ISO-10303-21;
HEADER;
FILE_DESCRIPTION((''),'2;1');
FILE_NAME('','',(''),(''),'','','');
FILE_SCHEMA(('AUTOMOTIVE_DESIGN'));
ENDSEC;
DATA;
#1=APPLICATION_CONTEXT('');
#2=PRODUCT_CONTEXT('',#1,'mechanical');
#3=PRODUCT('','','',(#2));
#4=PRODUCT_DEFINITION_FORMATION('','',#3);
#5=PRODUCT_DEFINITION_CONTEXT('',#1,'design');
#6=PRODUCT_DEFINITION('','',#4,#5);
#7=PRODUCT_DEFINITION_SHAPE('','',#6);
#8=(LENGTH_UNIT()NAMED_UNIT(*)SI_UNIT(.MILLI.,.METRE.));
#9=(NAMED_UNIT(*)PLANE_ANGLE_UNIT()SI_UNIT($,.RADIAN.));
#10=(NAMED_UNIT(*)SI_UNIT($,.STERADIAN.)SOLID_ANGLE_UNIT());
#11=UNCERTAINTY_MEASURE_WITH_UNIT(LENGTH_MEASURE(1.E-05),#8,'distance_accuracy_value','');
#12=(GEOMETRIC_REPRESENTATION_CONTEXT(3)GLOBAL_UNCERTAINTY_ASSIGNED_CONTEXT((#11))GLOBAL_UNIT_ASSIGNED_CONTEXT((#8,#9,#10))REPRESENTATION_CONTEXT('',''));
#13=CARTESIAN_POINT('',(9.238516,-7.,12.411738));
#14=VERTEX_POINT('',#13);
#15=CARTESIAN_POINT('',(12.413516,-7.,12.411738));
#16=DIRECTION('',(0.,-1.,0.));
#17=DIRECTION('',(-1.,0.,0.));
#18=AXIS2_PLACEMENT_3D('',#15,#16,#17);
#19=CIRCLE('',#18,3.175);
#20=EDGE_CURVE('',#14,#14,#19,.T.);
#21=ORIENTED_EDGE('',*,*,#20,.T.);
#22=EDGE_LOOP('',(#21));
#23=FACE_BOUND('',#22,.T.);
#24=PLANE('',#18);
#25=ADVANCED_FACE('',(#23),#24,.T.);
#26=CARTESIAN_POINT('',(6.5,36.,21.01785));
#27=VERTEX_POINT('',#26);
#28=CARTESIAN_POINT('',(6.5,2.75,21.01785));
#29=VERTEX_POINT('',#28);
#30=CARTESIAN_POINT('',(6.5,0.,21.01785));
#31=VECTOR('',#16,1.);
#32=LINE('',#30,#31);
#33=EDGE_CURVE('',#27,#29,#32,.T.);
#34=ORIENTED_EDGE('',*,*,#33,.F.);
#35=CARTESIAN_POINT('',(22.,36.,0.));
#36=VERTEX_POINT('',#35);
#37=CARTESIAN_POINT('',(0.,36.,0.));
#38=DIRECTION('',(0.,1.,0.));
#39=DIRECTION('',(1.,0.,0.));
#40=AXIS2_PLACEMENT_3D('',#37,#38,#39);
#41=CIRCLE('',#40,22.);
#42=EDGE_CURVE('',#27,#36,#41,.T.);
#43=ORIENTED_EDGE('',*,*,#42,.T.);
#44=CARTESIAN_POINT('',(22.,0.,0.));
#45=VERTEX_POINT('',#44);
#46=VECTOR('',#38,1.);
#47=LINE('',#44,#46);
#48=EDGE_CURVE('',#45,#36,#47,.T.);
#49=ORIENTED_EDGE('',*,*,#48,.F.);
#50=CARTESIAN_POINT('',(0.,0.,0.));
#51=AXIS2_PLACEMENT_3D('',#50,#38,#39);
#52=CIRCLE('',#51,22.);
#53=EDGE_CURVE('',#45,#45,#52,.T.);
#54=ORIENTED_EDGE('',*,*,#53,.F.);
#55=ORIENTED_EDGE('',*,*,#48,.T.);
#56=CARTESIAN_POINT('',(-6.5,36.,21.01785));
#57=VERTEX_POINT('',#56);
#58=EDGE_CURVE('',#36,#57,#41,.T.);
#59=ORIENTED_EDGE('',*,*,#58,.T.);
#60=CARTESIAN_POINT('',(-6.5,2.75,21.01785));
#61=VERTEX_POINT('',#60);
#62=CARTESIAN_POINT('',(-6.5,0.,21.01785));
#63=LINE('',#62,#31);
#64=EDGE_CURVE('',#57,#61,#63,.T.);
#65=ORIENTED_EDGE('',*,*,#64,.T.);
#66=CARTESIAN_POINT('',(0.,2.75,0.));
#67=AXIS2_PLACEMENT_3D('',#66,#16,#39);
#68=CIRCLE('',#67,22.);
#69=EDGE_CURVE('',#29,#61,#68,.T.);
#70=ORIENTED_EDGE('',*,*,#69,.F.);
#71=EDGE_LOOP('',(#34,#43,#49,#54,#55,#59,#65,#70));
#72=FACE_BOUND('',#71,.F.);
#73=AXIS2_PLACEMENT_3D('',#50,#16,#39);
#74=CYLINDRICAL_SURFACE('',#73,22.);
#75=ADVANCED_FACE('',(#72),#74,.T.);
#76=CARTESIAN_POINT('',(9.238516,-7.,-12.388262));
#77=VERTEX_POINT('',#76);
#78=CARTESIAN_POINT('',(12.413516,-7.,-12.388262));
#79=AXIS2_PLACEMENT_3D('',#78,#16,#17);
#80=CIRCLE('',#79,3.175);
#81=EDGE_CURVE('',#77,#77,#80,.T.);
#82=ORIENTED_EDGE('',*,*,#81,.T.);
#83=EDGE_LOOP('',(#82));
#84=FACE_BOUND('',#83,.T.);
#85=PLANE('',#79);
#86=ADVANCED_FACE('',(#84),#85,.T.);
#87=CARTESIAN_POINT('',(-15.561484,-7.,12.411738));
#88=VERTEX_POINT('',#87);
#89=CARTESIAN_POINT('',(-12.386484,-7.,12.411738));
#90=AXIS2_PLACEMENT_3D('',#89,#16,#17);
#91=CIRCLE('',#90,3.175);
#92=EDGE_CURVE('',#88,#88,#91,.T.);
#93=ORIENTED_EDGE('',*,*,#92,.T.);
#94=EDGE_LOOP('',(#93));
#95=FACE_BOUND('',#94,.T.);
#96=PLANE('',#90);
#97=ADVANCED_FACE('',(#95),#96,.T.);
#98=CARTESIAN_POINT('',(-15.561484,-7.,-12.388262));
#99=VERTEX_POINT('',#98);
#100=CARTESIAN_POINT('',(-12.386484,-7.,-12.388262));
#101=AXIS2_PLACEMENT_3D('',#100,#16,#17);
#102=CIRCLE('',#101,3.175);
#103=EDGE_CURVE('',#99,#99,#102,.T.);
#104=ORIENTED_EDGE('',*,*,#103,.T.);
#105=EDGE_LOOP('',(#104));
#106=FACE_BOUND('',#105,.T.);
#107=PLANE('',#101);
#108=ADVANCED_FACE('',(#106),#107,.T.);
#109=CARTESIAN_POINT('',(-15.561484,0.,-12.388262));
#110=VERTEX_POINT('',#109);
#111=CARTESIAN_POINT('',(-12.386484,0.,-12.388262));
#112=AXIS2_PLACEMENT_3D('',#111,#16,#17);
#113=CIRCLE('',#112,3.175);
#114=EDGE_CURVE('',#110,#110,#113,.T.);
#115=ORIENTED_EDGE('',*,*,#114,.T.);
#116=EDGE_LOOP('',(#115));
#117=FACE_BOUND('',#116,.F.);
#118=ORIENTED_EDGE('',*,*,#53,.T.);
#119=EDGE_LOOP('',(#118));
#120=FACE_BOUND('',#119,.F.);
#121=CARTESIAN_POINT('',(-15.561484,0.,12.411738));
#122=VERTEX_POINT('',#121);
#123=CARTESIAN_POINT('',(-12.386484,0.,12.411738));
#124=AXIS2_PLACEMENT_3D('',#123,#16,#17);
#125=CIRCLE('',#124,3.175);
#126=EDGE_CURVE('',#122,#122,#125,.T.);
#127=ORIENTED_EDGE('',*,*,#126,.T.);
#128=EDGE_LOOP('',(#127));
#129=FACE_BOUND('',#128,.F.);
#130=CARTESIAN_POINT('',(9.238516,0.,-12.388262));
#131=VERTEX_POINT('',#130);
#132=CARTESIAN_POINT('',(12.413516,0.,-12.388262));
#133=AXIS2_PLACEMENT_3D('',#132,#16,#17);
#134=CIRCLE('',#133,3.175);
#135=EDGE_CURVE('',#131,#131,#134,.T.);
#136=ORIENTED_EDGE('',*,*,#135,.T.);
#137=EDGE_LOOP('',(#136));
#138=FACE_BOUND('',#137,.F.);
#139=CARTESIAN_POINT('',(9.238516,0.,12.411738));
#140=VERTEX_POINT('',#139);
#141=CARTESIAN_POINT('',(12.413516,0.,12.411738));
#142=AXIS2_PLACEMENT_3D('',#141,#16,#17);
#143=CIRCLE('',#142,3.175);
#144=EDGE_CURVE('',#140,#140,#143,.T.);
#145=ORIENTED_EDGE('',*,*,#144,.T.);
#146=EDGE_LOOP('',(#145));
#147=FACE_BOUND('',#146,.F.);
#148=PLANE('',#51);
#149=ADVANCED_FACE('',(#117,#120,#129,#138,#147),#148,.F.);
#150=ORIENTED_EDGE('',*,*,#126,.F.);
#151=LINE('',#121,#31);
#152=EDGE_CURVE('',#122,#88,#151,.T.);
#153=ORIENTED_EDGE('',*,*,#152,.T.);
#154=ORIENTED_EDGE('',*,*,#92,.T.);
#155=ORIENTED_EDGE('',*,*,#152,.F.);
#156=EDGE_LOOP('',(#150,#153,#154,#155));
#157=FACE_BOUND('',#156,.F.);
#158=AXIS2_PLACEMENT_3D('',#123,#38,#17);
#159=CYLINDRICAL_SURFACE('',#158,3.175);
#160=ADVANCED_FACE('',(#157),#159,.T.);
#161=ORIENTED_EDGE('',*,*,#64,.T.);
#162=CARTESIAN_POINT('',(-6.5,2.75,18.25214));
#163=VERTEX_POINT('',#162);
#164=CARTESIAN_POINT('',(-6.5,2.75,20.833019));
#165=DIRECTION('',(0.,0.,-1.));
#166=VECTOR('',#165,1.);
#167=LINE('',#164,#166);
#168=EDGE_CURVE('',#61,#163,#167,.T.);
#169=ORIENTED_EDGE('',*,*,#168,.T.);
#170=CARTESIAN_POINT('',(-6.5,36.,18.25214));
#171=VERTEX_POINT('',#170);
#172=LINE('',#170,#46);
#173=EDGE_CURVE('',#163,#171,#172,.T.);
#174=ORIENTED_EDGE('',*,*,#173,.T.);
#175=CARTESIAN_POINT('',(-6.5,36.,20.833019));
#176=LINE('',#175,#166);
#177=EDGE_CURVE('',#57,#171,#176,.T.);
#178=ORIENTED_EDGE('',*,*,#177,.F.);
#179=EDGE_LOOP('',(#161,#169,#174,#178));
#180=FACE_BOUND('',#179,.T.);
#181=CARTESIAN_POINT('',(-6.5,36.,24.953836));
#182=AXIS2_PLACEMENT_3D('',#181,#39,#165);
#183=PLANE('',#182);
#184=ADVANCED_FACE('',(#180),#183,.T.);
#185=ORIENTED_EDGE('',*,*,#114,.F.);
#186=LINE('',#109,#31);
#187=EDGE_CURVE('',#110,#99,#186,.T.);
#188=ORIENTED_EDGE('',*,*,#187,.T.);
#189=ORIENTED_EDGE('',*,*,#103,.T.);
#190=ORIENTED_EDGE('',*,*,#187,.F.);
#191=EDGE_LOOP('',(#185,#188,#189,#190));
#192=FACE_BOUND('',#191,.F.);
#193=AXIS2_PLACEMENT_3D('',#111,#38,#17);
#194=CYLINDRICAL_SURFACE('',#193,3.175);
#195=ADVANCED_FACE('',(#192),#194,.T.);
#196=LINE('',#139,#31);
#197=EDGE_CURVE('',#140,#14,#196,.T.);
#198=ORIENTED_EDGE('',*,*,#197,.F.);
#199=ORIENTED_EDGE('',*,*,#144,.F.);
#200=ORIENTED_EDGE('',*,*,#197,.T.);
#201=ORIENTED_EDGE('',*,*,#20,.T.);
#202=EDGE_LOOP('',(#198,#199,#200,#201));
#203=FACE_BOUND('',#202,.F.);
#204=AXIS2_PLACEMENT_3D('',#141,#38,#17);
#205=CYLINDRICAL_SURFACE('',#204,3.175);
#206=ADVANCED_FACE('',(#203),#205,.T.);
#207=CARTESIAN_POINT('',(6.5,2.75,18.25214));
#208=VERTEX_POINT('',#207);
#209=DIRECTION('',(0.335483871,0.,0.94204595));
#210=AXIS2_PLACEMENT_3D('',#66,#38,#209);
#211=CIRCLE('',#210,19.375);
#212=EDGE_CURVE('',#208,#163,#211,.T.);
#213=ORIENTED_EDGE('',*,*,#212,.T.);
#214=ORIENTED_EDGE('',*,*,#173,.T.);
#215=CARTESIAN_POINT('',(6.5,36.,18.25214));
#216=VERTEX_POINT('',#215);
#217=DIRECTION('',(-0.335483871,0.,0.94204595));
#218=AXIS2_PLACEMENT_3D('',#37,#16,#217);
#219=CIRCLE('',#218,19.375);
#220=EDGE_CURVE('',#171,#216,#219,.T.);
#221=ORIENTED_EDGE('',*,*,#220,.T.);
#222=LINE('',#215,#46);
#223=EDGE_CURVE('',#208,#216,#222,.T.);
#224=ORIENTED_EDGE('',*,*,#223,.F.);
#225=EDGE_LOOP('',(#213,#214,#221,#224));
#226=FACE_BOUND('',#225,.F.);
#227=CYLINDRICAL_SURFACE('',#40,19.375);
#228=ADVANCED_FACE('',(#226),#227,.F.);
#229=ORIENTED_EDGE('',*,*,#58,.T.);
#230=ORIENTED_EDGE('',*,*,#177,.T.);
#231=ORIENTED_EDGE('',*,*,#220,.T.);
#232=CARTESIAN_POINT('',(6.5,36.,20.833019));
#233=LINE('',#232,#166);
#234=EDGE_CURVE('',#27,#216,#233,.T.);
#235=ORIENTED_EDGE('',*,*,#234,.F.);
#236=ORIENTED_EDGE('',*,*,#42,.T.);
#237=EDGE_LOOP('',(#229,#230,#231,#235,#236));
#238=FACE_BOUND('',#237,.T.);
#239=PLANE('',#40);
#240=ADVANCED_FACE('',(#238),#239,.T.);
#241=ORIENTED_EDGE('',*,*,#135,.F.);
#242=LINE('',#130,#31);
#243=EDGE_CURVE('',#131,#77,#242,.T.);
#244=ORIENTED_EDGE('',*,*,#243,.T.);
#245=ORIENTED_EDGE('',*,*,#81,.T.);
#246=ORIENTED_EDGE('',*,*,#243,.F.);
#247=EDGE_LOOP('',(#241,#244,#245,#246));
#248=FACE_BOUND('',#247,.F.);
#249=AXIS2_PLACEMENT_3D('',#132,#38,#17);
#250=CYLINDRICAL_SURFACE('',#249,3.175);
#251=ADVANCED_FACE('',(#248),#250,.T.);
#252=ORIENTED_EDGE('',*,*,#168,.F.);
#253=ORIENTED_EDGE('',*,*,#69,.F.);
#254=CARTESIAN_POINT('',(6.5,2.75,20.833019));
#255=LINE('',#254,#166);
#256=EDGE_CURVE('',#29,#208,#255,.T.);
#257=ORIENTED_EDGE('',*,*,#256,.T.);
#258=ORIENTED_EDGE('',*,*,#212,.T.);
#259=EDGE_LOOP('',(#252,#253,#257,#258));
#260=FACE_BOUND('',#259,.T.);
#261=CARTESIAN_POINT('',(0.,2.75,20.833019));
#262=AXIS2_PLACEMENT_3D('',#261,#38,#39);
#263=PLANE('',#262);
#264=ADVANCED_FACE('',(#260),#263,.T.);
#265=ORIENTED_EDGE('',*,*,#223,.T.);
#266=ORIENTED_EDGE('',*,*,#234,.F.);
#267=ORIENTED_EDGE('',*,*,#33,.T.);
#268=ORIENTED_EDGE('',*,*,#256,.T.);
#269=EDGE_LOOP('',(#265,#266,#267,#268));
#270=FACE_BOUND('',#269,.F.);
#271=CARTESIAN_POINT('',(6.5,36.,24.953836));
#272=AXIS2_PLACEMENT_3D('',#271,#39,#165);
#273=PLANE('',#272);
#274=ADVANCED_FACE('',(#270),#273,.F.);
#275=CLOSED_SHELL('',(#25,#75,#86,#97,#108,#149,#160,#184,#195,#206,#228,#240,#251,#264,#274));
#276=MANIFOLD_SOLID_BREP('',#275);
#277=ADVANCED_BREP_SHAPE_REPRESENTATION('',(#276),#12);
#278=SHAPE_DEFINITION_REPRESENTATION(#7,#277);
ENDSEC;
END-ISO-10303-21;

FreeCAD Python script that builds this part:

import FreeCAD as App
import Part
import Sketcher
Q = App.Units.Quantity


def add_polygon(sketch, points):
    """Adds a closed chain of lines whose ends are joined by coincident constraints."""
    first, n = sketch.GeometryCount, len(points)
    for a, b in zip(points, points[1:] + points[:1]):
        sketch.addGeometry(Part.LineSegment(App.Vector(*a, 0), App.Vector(*b, 0)), False)
    for i in range(n):
        sketch.addConstraint(Sketcher.Constraint("Coincident", first + i, 2, first + (i + 1) % n, 1))

doc = App.newDocument("Part")
body = doc.addObject("PartDesign::Body", "Body")

sketch1 = body.newObject("Sketcher::SketchObject", "Sketch")
sketch1.AttachmentSupport = (doc.getObject("XZ_Plane"), [""])
sketch1.MapMode = "FlatFace"
sketch1.addGeometry(Part.Circle(App.Vector(0, 0, 0), App.Vector(0, 0, 1), 22), False)
sketch1.addConstraint([
    Sketcher.Constraint("Coincident", 0, 3, -1, 1),
    Sketcher.Constraint("Diameter", 0, Q("44 mm")),
])
pad1 = body.newObject("PartDesign::Pad", "Pad")
pad1.Profile = sketch1
pad1.Length = 36
pad1.Reversed = True

sketch2 = body.newObject("Sketcher::SketchObject", "Sketch001")
sketch2.AttachmentSupport = (doc.getObject("XZ_Plane"), [""])
sketch2.MapMode = "FlatFace"
sketch2.AttachmentOffset = App.Placement(App.Vector(0, 0, -36), App.Rotation())
sketch2.addGeometry(Part.Circle(App.Vector(0, 0, 0), App.Vector(0, 0, 1), 19), False)
sketch2.addConstraint([
    Sketcher.Constraint("Coincident", 0, 3, -1, 1),
    Sketcher.Constraint("Diameter", 0, Q("38.75 mm")),
])
pocket1 = body.newObject("PartDesign::Pocket", "Pocket")
pocket1.Profile = sketch2
pocket1.Length = 33.25
pocket1.Reversed = True

sketch3 = body.newObject("Sketcher::SketchObject", "Sketch002")
sketch3.AttachmentSupport = (doc.getObject("XZ_Plane"), [""])
sketch3.MapMode = "FlatFace"
sketch3.AttachmentOffset = App.Placement(App.Vector(0, 0, -36), App.Rotation())
add_polygon(sketch3, [(-6, 17), (-6, 25), (6, 25), (6, 17)])
sketch3.addConstraint([
    Sketcher.Constraint("Vertical", 0),
    Sketcher.Constraint("Horizontal", 1),
    Sketcher.Constraint("Vertical", 2),
    Sketcher.Constraint("Horizontal", 3),
    Sketcher.Constraint("DistanceX", 1, 1, 1, 2, Q("13 mm")),
    Sketcher.Constraint("DistanceX", 0, 2, -1, 1, Q("6.5 mm")),
    Sketcher.Constraint("DistanceY", 0, 1, 0, 2, Q("8.241634 mm")),
    Sketcher.Constraint("DistanceY", -1, 1, 0, 2, Q("24.953836 mm")),
])
pocket2 = body.newObject("PartDesign::Pocket", "Pocket001")
pocket2.Profile = sketch3
pocket2.Length = 33.25
pocket2.Reversed = True

sketch4 = body.newObject("Sketcher::SketchObject", "Sketch003")
sketch4.AttachmentSupport = (doc.getObject("XZ_Plane"), [""])
sketch4.MapMode = "FlatFace"
sketch4.addGeometry([
    Part.Circle(App.Vector(-12.4, 12.4, 0), App.Vector(0, 0, 1), 3.2),
    Part.Circle(App.Vector(12.4, 12.4, 0), App.Vector(0, 0, 1), 3.2),
    Part.Circle(App.Vector(12.4, -12.4, 0), App.Vector(0, 0, 1), 3.2),
    Part.Circle(App.Vector(-12.4, -12.4, 0), App.Vector(0, 0, 1), 3.2),
], False)
sketch4.addConstraint([
    Sketcher.Constraint("Equal", 0, 1),
    Sketcher.Constraint("Equal", 1, 2),
    Sketcher.Constraint("Equal", 2, 3),
    Sketcher.Constraint("Horizontal", 0, 3, 1, 3),
    Sketcher.Constraint("Horizontal", 2, 3, 3, 3),
    Sketcher.Constraint("Vertical", 1, 3, 2, 3),
    Sketcher.Constraint("Vertical", 0, 3, 3, 3),
    Sketcher.Constraint("Diameter", 0, Q("6.35 mm")),
    Sketcher.Constraint("DistanceX", 0, 3, 1, 3, Q("24.8 mm")),
    Sketcher.Constraint("DistanceY", 2, 3, 1, 3, Q("24.8 mm")),
    Sketcher.Constraint("DistanceX", 0, 3, -1, 1, Q("12.386484 mm")),
    Sketcher.Constraint("DistanceY", -1, 1, 0, 3, Q("12.411738 mm")),
])
pad2 = body.newObject("PartDesign::Pad", "Pad001")
pad2.Profile = sketch4
pad2.Length = 7

doc.recompute()
